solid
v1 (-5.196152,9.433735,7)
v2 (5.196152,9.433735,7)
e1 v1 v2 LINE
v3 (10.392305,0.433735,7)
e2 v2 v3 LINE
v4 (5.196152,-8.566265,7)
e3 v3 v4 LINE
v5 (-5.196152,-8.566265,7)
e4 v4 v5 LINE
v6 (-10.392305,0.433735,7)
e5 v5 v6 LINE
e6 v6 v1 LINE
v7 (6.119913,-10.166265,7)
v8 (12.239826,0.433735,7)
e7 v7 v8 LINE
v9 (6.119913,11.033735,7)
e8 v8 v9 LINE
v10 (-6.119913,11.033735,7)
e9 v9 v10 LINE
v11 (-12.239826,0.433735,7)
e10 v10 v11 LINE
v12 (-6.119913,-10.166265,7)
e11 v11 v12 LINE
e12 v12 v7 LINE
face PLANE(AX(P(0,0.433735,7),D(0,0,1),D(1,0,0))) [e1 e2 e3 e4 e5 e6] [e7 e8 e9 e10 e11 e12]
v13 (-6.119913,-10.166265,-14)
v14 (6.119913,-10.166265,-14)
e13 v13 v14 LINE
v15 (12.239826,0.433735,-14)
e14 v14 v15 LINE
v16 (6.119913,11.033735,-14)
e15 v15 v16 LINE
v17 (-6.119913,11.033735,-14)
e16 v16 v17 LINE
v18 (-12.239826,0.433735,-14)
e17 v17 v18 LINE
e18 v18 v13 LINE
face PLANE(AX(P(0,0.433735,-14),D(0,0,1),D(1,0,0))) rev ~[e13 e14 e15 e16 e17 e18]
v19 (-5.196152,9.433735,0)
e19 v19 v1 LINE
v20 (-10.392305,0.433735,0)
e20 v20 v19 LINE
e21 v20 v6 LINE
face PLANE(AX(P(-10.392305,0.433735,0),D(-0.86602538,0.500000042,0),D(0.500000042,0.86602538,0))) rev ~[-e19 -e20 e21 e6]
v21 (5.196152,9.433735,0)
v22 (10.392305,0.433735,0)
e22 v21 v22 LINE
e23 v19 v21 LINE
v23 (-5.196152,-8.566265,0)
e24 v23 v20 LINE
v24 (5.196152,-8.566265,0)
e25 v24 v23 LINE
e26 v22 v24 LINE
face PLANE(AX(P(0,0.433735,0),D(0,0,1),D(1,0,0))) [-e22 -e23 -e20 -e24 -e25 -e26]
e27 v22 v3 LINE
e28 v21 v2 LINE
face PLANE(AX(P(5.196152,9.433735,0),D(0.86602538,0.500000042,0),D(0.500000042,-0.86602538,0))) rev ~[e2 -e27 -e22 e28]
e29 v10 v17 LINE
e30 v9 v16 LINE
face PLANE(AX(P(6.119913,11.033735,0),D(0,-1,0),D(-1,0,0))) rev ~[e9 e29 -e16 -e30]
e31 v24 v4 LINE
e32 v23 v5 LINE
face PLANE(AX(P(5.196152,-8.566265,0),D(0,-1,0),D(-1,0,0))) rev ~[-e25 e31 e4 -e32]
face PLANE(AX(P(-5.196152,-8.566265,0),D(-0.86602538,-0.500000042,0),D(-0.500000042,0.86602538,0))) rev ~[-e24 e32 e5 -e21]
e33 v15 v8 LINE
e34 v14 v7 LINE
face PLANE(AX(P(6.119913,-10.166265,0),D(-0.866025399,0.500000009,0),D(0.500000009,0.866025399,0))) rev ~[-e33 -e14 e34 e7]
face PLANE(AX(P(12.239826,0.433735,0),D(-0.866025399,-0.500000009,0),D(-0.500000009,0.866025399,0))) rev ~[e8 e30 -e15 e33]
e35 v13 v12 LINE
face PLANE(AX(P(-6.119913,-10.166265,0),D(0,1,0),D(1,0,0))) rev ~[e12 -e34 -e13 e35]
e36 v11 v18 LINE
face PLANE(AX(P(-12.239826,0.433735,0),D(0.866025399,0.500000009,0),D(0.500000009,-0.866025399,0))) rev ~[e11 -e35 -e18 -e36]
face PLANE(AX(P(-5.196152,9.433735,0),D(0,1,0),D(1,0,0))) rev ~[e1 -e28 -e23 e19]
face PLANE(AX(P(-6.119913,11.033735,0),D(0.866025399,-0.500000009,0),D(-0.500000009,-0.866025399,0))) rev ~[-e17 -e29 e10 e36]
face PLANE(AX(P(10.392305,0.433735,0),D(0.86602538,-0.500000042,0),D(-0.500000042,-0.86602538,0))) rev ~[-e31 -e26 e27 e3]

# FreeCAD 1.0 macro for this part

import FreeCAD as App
import Part
import Sketcher

V = App.Vector
Q = App.Units.Quantity

doc = App.newDocument("Part")
body = doc.addObject("PartDesign::Body", "Body")

# Sketch on XY plane
sketch1 = body.newObject("Sketcher::SketchObject", "Sketch")
sketch1.AttachmentSupport = (doc.getObject("XY_Plane"), [""])
sketch1.MapMode = "FlatFace"
sketch1.addGeometry([
    Part.LineSegment(V(-12, 0, 0), V(-6, -10, 0)),  # 0
    Part.LineSegment(V(-6, -10, 0), V(6, -10, 0)),  # 1
    Part.LineSegment(V(6, -10, 0), V(12, 0, 0)),  # 2
    Part.LineSegment(V(12, 0, 0), V(6, 11, 0)),  # 3
    Part.LineSegment(V(6, 11, 0), V(-6, 11, 0)),  # 4
    Part.LineSegment(V(-6, 11, 0), V(-12, 0, 0)),  # 5
], False)
sketch1.addConstraint([
    Sketcher.Constraint("Coincident", 0, 2, 1, 1),
    Sketcher.Constraint("Coincident", 1, 2, 2, 1),
    Sketcher.Constraint("Coincident", 2, 2, 3, 1),
    Sketcher.Constraint("Coincident", 3, 2, 4, 1),
    Sketcher.Constraint("Coincident", 4, 2, 5, 1),
    Sketcher.Constraint("Coincident", 5, 2, 0, 1),
    Sketcher.Constraint("Horizontal", 1),
    Sketcher.Constraint("Horizontal", 4),
    Sketcher.Constraint("Symmetric", 2, 2, 5, 2, -2),
    Sketcher.Constraint("Parallel", 0, 3),
    Sketcher.Constraint("Parallel", 2, 5),
    Sketcher.Constraint("Vertical", 1, 2, 3, 2),
    Sketcher.Constraint("Vertical", 0, 2, 4, 2),
    Sketcher.Constraint("Angle", 0, Q("-59.999999 deg")),
    Sketcher.Constraint("DistanceY", 1, 2, 2, 2, Q("10.6 mm")),
    Sketcher.Constraint("DistanceX", 1, 1, 1, 2, Q("12.239826 mm")),
    Sketcher.Constraint("DistanceY", 0, 2, -1, 1, Q("10.166265 mm")),
])
pad1 = body.newObject("PartDesign::Pad", "Pad")
pad1.Profile = sketch1
pad1.Length = 14
pad1.Reversed = True

# Sketch on XY plane
sketch2 = body.newObject("Sketcher::SketchObject", "Sketch001")
sketch2.AttachmentSupport = (doc.getObject("XY_Plane"), [""])
sketch2.MapMode = "FlatFace"
sketch2.addGeometry([
    Part.LineSegment(V(-12, 0, 0), V(-6, -10, 0)),  # 0
    Part.LineSegment(V(-6, -10, 0), V(6, -10, 0)),  # 1
    Part.LineSegment(V(6, -10, 0), V(12, 0, 0)),  # 2
    Part.LineSegment(V(12, 0, 0), V(6, 11, 0)),  # 3
    Part.LineSegment(V(6, 11, 0), V(-6, 11, 0)),  # 4
    Part.LineSegment(V(-6, 11, 0), V(-12, 0, 0)),  # 5
    Part.LineSegment(V(5, 9, 0), V(10, 0, 0)),  # 6
    Part.LineSegment(V(10, 0, 0), V(5, -9, 0)),  # 7
    Part.LineSegment(V(5, -9, 0), V(-5, -9, 0)),  # 8
    Part.LineSegment(V(-5, -9, 0), V(-10, 0, 0)),  # 9
    Part.LineSegment(V(-10, 0, 0), V(-5, 9, 0)),  # 10
    Part.LineSegment(V(-5, 9, 0), V(5, 9, 0)),  # 11
], False)
sketch2.addConstraint([
    Sketcher.Constraint("Coincident", 0, 2, 1, 1),
    Sketcher.Constraint("Coincident", 1, 2, 2, 1),
    Sketcher.Constraint("Coincident", 2, 2, 3, 1),
    Sketcher.Constraint("Coincident", 3, 2, 4, 1),
    Sketcher.Constraint("Coincident", 4, 2, 5, 1),
    Sketcher.Constraint("Coincident", 5, 2, 0, 1),
    Sketcher.Constraint("Coincident", 6, 2, 7, 1),
    Sketcher.Constraint("Coincident", 7, 2, 8, 1),
    Sketcher.Constraint("Coincident", 8, 2, 9, 1),
    Sketcher.Constraint("Coincident", 9, 2, 10, 1),
    Sketcher.Constraint("Coincident", 10, 2, 11, 1),
    Sketcher.Constraint("Coincident", 11, 2, 6, 1),
    Sketcher.Constraint("Horizontal", 1),
    Sketcher.Constraint("Horizontal", 4),
    Sketcher.Constraint("Horizontal", 8),
    Sketcher.Constraint("Horizontal", 11),
    Sketcher.Constraint("Symmetric", 2, 2, 5, 2, -2),
    Sketcher.Constraint("Symmetric", 6, 2, 9, 2, -2),
    Sketcher.Constraint("Parallel", 0, 3),
    Sketcher.Constraint("Parallel", 2, 5),
    Sketcher.Constraint("Parallel", 3, 6),
    Sketcher.Constraint("Parallel", 5, 7),
    Sketcher.Constraint("Parallel", 6, 9),
    Sketcher.Constraint("Parallel", 7, 10),
    Sketcher.Constraint("Horizontal", 5, 2, 6, 2),
    Sketcher.Constraint("Vertical", 1, 2, 3, 2),
    Sketcher.Constraint("Vertical", 0, 2, 4, 2),
    Sketcher.Constraint("Vertical", 8, 2, 10, 2),
    Sketcher.Constraint("Angle", 0, Q("-59.999999 deg")),
    Sketcher.Constraint("DistanceY", 7, 2, 6, 2, Q("9 mm")),
    Sketcher.Constraint("DistanceY", 1, 2, 2, 2, Q("10.6 mm")),
    Sketcher.Constraint("DistanceX", 1, 1, 1, 2, Q("12.239826 mm")),
    Sketcher.Constraint("DistanceX", 8, 2, 8, 1, Q("10.392304 mm")),
    Sketcher.Constraint("DistanceY", 0, 2, -1, 1, Q("10.166265 mm")),
])
pad2 = body.newObject("PartDesign::Pad", "Pad001")
pad2.Profile = sketch2
pad2.Length = 7

doc.recompute()
